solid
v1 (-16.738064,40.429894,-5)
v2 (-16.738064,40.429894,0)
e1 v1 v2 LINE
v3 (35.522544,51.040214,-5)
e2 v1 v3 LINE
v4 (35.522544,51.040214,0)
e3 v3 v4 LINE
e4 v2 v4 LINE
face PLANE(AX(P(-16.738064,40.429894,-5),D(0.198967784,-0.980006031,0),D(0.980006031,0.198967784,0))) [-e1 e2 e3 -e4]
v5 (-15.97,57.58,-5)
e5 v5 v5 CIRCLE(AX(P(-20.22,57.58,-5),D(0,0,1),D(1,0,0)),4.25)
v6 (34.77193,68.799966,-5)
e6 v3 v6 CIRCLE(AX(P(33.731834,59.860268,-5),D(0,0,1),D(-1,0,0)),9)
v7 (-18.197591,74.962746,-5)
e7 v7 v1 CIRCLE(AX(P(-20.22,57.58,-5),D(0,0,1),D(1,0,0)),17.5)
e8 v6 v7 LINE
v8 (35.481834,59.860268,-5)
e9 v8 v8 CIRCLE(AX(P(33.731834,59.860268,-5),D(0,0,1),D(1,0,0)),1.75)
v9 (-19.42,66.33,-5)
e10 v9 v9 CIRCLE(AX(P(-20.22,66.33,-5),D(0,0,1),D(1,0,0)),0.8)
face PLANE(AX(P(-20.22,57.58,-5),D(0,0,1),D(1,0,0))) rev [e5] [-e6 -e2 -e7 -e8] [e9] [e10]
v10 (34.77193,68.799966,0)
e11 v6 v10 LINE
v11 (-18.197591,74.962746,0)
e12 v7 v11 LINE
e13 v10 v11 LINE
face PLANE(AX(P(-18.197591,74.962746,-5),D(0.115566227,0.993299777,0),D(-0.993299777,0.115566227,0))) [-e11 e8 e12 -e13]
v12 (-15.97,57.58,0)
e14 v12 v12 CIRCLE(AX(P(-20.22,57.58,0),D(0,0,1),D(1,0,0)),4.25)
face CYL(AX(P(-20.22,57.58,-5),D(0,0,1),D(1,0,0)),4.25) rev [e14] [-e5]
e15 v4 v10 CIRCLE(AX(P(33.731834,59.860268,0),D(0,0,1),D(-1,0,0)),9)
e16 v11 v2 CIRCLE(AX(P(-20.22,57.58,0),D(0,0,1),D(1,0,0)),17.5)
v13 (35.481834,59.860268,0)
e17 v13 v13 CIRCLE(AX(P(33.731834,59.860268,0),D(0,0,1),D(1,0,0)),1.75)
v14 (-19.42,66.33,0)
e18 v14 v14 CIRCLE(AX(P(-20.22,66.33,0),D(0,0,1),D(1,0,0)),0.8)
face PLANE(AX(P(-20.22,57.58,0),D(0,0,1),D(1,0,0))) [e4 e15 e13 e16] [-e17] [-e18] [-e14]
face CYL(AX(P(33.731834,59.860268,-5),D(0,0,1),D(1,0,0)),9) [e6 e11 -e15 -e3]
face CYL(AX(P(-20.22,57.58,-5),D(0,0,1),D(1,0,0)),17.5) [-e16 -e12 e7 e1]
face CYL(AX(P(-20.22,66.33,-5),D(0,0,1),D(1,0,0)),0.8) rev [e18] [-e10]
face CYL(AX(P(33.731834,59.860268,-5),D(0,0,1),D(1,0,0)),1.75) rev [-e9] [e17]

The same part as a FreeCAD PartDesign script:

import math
import FreeCAD as App
import Part
import Sketcher

V = App.Vector
Q = App.Units.Quantity

doc = App.newDocument("Part")
body = doc.addObject("PartDesign::Body", "Body")

sketch1 = body.newObject("Sketcher::SketchObject", "Sketch")
sketch1.AttachmentSupport = (doc.getObject("XY_Plane"), [""])
sketch1.MapMode = "FlatFace"
sketch1.addGeometry(Part.LineSegment(V(34.8, 68.8, 0), V(-18.2, 75, 0)), False)
sketch1.addGeometry(Part.ArcOfCircle(Part.Circle(V(-20.2, 57.6, 0), V(0, 0, 1), 17.5), math.radians(83), math.radians(281)), False)
sketch1.addGeometry(Part.LineSegment(V(-16.7, 40.4, 0), V(35.5, 51, 0)), False)
sketch1.addGeometry(Part.ArcOfCircle(Part.Circle(V(33.7, 59.9, 0), V(0, 0, 1), 9), math.radians(-79), math.radians(83)), False)
sketch1.addGeometry(Part.Circle(V(33.7, 59.9, 0), V(0, 0, 1), 1.8), False)
sketch1.addGeometry(Part.Circle(V(-20.2, 57.6, 0), V(0, 0, 1), 4.2), False)
sketch1.addGeometry(Part.Circle(V(-20.2, 66.3, 0), V(0, 0, 1), 0.8), False)
sketch1.addConstraint(Sketcher.Constraint("Tangent", 0, 2, 1, 1))
sketch1.addConstraint(Sketcher.Constraint("Tangent", 1, 2, 2, 1))
sketch1.addConstraint(Sketcher.Constraint("Tangent", 2, 2, 3, 1))
sketch1.addConstraint(Sketcher.Constraint("Tangent", 3, 2, 0, 1))
sketch1.addConstraint(Sketcher.Constraint("Coincident", 4, 3, 3, 3))
sketch1.addConstraint(Sketcher.Constraint("Coincident", 5, 3, 1, 3))
sketch1.addConstraint(Sketcher.Constraint("Vertical", 5, 3, 6, 3))
sketch1.addConstraint(Sketcher.Constraint("Radius", 3, Q("9 mm")))
sketch1.addConstraint(Sketcher.Constraint("Diameter", 4, Q("3.5 mm")))
sketch1.addConstraint(Sketcher.Constraint("Diameter", 5, Q("8.5 mm")))
sketch1.addConstraint(Sketcher.Constraint("Diameter", 6, Q("1.6 mm")))
sketch1.addConstraint(Sketcher.Constraint("Radius", 1, Q("17.5 mm")))
sketch1.addConstraint(Sketcher.Constraint("DistanceX", 1, 3, -1, 1, Q("20.22 mm")))
sketch1.addConstraint(Sketcher.Constraint("DistanceY", -1, 1, 1, 3, Q("57.58 mm")))
sketch1.addConstraint(Sketcher.Constraint("DistanceY", -1, 1, 6, 3, Q("66.33 mm")))
sketch1.addConstraint(Sketcher.Constraint("DistanceY", -1, 1, 3, 3, Q("59.860268 mm")))
sketch1.addConstraint(Sketcher.Constraint("DistanceX", 0, 2, -1, 1, Q("18.197591 mm")))
pad1 = body.newObject("PartDesign::Pad", "Pad")
pad1.Profile = sketch1
pad1.Length = 5
pad1.Reversed = True

doc.recompute()
